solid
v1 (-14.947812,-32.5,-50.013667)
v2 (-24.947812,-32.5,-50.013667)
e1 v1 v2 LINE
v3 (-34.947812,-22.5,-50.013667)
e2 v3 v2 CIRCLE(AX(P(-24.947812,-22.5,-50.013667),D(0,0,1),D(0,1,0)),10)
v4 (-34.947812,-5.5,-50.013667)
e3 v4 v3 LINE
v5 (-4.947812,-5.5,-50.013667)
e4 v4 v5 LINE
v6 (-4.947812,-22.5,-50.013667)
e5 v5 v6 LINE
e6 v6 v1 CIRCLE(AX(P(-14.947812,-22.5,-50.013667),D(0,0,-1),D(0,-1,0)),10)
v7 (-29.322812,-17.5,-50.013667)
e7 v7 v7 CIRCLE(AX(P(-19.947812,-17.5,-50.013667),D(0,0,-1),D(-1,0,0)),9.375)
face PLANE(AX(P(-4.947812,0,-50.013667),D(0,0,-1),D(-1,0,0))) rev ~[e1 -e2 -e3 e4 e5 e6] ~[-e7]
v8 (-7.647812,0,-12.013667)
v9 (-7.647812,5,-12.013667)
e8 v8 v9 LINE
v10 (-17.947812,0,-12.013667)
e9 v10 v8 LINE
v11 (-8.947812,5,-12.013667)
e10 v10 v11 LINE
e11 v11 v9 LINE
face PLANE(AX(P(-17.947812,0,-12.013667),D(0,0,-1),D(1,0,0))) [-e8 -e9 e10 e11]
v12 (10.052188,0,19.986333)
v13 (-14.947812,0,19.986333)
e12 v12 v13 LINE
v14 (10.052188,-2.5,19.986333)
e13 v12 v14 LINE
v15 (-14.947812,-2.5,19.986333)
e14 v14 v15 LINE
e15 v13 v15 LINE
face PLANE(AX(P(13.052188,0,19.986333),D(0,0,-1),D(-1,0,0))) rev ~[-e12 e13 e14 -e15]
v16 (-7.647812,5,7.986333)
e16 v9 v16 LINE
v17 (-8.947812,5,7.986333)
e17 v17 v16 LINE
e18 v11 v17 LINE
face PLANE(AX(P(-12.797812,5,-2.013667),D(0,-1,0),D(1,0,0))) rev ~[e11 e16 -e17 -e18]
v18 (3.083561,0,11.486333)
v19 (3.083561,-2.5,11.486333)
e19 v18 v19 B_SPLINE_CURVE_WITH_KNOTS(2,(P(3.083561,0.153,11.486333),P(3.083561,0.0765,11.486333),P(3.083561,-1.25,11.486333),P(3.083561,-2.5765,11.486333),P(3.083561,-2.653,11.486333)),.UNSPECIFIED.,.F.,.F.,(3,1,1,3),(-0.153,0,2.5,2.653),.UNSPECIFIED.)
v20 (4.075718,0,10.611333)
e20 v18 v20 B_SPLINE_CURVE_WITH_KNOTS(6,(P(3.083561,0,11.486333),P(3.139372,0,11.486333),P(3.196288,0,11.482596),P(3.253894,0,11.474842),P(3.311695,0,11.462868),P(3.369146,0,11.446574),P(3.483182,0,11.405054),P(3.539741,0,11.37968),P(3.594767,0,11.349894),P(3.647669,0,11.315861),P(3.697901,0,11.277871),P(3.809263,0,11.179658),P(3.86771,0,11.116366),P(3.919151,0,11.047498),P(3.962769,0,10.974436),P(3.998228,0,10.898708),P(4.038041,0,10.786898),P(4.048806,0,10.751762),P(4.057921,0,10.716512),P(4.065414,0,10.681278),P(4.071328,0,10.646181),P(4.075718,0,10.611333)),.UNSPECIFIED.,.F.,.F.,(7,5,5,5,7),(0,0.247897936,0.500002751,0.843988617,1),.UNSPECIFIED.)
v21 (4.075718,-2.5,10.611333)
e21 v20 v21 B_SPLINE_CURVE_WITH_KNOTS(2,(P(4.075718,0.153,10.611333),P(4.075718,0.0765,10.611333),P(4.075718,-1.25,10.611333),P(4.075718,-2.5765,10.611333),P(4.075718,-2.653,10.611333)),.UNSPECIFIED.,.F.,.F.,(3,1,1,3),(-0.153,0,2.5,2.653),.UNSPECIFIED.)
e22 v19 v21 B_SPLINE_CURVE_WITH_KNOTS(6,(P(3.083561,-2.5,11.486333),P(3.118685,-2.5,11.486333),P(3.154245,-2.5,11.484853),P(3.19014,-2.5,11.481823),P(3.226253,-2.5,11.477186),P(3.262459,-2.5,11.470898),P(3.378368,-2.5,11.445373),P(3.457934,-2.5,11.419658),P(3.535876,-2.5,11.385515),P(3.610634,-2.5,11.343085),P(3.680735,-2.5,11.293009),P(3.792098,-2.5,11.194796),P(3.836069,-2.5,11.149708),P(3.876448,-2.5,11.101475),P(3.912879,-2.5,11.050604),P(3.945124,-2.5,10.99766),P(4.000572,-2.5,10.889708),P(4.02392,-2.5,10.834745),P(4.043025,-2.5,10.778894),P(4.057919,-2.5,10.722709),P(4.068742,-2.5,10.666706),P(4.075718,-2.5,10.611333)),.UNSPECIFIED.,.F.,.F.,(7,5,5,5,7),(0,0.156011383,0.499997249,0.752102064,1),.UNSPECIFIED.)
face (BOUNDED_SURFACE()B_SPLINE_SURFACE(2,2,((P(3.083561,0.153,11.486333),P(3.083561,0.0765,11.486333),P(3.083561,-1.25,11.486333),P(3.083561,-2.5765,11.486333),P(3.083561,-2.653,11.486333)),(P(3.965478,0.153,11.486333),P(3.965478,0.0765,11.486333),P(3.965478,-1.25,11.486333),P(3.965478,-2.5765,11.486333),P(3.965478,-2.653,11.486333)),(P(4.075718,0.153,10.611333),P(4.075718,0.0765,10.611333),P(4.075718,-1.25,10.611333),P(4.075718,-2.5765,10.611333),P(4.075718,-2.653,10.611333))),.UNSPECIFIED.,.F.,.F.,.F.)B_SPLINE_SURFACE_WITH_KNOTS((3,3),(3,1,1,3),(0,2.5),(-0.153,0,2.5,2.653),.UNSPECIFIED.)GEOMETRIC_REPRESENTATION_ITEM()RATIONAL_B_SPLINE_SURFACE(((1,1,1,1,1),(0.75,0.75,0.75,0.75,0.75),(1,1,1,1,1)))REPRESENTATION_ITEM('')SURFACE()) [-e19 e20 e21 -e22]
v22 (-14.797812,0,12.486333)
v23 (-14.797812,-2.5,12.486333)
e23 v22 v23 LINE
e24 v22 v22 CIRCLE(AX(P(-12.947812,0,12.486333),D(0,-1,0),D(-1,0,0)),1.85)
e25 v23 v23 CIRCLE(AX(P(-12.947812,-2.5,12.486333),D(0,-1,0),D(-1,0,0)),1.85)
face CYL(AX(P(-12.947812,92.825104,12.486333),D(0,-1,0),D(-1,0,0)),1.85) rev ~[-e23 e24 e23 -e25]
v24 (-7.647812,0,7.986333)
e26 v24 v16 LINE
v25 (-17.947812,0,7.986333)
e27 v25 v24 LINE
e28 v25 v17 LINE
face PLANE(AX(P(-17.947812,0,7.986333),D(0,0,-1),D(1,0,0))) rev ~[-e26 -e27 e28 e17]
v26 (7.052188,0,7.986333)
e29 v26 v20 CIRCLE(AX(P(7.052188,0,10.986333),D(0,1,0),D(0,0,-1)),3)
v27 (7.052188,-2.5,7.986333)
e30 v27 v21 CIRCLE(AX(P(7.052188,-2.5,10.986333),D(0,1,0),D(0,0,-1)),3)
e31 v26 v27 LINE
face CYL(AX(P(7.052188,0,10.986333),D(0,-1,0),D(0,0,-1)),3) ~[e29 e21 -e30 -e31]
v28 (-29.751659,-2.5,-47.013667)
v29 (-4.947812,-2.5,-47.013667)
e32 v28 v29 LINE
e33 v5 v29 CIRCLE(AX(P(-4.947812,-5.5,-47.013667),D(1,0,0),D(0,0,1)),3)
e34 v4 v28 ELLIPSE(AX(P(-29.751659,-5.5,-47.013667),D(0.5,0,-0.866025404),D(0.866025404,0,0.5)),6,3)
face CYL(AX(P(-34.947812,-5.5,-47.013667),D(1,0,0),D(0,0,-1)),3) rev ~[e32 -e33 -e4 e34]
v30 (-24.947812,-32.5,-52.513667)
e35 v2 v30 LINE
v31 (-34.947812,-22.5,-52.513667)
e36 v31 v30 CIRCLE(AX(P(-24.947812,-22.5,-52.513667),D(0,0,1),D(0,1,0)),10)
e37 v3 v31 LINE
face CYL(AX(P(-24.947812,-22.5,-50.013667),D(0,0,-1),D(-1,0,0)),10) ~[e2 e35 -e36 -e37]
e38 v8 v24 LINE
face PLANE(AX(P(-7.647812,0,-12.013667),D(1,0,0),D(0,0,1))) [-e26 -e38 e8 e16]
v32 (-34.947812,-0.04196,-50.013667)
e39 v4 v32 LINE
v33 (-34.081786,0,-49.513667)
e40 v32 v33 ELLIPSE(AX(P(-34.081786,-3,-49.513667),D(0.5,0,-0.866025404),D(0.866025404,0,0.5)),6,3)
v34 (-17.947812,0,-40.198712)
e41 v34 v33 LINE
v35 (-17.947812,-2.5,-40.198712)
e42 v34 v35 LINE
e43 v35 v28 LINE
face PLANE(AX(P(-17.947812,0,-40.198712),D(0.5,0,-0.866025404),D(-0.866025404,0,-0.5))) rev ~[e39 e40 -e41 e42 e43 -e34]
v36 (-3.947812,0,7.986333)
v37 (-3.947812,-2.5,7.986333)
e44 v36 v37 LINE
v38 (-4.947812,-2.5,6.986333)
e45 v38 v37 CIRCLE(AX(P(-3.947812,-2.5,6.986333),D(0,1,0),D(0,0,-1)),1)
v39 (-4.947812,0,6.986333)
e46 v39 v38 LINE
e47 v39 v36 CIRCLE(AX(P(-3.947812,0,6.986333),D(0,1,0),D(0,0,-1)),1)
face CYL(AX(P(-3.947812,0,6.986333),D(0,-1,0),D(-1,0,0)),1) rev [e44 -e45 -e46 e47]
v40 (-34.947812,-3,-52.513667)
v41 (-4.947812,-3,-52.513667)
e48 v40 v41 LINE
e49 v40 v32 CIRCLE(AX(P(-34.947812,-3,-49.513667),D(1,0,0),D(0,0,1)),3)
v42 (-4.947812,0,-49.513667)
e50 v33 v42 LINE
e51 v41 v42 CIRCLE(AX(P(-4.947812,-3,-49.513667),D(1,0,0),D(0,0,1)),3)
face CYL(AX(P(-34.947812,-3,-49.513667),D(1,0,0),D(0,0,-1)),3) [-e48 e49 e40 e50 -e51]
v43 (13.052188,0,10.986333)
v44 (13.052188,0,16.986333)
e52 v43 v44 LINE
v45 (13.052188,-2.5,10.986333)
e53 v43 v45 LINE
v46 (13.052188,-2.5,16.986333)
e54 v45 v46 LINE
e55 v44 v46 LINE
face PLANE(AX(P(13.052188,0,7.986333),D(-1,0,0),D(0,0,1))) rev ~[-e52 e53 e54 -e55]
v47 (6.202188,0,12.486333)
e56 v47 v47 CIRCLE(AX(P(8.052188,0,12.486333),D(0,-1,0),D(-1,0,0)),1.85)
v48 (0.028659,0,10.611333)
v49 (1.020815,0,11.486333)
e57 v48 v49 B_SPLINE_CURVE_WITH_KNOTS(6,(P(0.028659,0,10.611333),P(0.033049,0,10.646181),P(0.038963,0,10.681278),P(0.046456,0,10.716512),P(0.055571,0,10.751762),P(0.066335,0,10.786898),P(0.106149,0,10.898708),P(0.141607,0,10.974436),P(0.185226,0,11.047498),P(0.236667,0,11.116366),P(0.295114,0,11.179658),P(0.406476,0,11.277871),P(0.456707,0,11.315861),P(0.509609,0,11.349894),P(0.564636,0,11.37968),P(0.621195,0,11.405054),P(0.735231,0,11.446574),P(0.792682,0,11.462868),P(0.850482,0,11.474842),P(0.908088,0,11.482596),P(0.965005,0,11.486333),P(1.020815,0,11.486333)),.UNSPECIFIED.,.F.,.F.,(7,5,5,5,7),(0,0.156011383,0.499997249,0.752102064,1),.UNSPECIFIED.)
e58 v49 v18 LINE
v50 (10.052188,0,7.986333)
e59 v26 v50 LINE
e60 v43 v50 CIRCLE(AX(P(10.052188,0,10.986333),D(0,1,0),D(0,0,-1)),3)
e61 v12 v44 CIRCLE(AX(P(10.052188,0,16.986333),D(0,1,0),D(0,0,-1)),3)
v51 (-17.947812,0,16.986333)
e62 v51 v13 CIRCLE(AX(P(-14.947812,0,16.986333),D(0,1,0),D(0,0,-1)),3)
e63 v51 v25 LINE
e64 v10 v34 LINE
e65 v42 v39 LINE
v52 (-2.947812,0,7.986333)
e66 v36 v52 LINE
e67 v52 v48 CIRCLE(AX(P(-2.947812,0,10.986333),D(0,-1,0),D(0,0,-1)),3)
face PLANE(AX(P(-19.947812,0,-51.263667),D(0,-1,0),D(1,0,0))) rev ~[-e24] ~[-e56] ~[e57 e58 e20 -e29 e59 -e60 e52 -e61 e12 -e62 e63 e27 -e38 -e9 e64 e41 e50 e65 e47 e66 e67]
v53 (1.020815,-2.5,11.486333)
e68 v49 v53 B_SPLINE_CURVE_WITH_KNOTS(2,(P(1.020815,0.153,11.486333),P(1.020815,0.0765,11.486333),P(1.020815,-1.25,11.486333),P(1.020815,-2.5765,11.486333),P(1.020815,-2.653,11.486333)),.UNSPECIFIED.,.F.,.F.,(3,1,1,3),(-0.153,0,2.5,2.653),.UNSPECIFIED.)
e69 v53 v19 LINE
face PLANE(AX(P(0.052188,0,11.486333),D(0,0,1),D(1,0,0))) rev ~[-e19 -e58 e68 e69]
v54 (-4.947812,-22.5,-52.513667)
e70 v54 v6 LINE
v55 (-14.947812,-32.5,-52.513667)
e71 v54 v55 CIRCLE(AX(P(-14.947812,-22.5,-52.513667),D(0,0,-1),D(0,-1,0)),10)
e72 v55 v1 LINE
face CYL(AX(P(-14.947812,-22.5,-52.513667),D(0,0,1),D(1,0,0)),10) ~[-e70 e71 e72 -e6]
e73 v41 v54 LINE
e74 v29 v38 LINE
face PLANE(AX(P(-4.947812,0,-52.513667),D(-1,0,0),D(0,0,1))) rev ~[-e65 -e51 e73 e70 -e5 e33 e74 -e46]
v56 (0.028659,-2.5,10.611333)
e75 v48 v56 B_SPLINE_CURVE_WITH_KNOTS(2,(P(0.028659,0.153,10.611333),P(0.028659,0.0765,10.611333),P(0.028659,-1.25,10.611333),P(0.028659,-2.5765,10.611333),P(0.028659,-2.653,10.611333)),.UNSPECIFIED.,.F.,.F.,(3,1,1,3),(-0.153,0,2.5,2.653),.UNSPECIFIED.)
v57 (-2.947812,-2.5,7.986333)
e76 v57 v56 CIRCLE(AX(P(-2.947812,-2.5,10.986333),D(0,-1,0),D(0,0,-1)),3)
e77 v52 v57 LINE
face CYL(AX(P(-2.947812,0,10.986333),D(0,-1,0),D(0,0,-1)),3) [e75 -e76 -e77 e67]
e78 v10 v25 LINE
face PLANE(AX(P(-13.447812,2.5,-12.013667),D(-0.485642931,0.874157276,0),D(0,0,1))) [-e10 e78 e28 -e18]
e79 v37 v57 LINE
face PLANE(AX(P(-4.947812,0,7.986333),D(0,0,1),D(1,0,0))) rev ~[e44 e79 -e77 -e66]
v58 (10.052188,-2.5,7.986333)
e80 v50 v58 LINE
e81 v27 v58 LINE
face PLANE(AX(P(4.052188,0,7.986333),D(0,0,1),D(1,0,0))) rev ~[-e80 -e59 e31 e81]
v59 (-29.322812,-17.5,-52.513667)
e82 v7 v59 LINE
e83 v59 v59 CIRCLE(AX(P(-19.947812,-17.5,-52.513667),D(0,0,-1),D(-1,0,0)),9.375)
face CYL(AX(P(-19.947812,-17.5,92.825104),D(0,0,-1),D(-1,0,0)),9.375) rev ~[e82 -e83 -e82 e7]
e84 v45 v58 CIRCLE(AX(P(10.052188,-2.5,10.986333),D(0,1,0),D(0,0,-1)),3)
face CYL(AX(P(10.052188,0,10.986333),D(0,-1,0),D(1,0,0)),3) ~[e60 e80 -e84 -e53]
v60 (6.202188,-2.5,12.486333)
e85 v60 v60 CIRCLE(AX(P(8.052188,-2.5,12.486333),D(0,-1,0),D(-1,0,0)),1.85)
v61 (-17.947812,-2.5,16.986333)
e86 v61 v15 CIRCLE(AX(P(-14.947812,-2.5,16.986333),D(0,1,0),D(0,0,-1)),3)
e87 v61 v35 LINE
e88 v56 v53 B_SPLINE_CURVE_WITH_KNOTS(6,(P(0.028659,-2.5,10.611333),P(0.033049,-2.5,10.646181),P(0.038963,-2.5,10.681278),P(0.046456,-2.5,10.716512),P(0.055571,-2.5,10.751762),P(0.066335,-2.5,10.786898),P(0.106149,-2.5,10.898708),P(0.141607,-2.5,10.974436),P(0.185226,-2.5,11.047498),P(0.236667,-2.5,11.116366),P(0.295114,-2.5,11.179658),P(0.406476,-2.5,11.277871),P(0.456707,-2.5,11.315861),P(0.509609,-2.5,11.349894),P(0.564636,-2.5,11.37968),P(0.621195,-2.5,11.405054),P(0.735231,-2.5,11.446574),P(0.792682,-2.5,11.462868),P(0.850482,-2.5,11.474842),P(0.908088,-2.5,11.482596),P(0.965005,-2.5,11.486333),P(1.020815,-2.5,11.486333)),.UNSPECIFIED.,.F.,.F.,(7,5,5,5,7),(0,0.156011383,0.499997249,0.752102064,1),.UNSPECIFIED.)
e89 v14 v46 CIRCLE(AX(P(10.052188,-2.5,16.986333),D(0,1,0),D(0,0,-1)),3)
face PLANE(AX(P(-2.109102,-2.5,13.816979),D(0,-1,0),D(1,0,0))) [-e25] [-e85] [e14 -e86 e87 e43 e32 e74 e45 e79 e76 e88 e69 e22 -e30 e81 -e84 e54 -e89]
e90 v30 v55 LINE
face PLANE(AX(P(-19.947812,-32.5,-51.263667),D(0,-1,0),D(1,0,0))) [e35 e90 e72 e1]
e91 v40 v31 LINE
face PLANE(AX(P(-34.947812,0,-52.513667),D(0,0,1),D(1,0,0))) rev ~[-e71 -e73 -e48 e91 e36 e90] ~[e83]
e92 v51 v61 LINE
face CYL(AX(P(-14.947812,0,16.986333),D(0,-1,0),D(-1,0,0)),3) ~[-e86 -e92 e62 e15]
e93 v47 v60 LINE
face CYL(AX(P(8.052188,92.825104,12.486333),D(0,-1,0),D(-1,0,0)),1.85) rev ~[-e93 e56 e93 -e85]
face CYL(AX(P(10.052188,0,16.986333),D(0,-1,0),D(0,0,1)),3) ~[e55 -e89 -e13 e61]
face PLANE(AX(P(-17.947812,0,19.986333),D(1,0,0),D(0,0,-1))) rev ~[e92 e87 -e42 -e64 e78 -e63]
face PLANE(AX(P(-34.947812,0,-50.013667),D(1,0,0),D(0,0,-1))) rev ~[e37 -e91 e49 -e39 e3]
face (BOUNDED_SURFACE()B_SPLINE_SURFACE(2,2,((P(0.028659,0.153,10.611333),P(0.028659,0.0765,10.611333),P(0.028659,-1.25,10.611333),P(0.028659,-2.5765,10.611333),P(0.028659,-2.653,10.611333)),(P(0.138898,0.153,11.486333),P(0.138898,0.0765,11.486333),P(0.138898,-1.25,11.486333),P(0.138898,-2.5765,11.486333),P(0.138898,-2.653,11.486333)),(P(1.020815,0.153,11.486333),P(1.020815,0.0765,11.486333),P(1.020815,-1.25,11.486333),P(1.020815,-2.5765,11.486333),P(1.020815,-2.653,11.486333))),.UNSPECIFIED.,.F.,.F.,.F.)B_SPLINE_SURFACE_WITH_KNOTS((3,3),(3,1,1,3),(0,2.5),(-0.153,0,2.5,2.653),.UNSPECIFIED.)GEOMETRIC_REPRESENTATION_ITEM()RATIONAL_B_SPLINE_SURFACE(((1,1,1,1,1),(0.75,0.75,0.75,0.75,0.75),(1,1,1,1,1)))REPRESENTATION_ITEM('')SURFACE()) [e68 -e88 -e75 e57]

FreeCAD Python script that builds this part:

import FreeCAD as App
import Part
import Sketcher
from FreeCAD import Vector
Q = App.Units.Quantity


def edges_at(feature, points):
    """Names of the edges that pass closest to the given points."""
    edges = feature.Shape.Edges
    near = lambda p: min(range(len(edges)), key=lambda i: edges[i].distToShape(Part.Vertex(*p))[0])
    return sorted({f"Edge{near(p) + 1}" for p in points})

doc = App.newDocument("Part")
body = doc.addObject("PartDesign::Body", "Body")

# Sketch on XZ plane
sketch1 = body.newObject("Sketcher::SketchObject", "Sketch")
sketch1.AttachmentSupport = (doc.getObject("XZ_Plane"), [""])
sketch1.MapMode = "FlatFace"
sketch1.addGeometry([
    Part.LineSegment(Vector(13.1, 8, 0), Vector(13.1, 20, 0)),  # 0
    Part.LineSegment(Vector(13.1, 20, 0), Vector(-17.9, 20, 0)),  # 1
    Part.LineSegment(Vector(-17.9, 20, 0), Vector(-17.9, -40.2, 0)),  # 2
    Part.LineSegment(Vector(-17.9, -40.2, 0), Vector(-34.9, -50, 0)),  # 3
    Part.LineSegment(Vector(-34.9, -50, 0), Vector(-4.9, -50, 0)),  # 4
    Part.LineSegment(Vector(-4.9, -50, 0), Vector(-4.9, 8, 0)),  # 5
    Part.LineSegment(Vector(-4.9, 8, 0), Vector(0.1, 8, 0)),  # 6
    Part.LineSegment(Vector(0.1, 8, 0), Vector(0.1, 11.5, 0)),  # 7
    Part.LineSegment(Vector(0.1, 11.5, 0), Vector(4.1, 11.5, 0)),  # 8
    Part.LineSegment(Vector(4.1, 11.5, 0), Vector(4.1, 8, 0)),  # 9
    Part.LineSegment(Vector(4.1, 8, 0), Vector(13.1, 8, 0)),  # 10
], False)
sketch1.addConstraint([
    Sketcher.Constraint("Coincident", 0, 2, 1, 1),
    Sketcher.Constraint("Coincident", 1, 2, 2, 1),
    Sketcher.Constraint("Coincident", 2, 2, 3, 1),
    Sketcher.Constraint("Coincident", 3, 2, 4, 1),
    Sketcher.Constraint("Coincident", 4, 2, 5, 1),
    Sketcher.Constraint("Coincident", 5, 2, 6, 1),
    Sketcher.Constraint("Coincident", 6, 2, 7, 1),
    Sketcher.Constraint("Coincident", 7, 2, 8, 1),
    Sketcher.Constraint("Coincident", 8, 2, 9, 1),
    Sketcher.Constraint("Coincident", 9, 2, 10, 1),
    Sketcher.Constraint("Coincident", 10, 2, 0, 1),
    Sketcher.Constraint("Vertical", 0),
    Sketcher.Constraint("Horizontal", 1),
    Sketcher.Constraint("Vertical", 2),
    Sketcher.Constraint("Horizontal", 4),
    Sketcher.Constraint("Vertical", 5),
    Sketcher.Constraint("Horizontal", 6),
    Sketcher.Constraint("Vertical", 7),
    Sketcher.Constraint("Horizontal", 8),
    Sketcher.Constraint("Vertical", 9),
    Sketcher.Constraint("Horizontal", 10),
    Sketcher.Constraint("Horizontal", 6, 2, 9, 2),
    Sketcher.Constraint("DistanceX", 1, 2, 1, 1, 31.0),
    Sketcher.Constraint("DistanceX", 4, 1, 4, 2, 30.0),
    Sketcher.Constraint("DistanceX", 6, 1, 6, 2, 5.0),
    Sketcher.Constraint("DistanceX", 8, 1, 8, 2, 4.0),
    Sketcher.Constraint("DistanceX", 10, 1, 10, 2, 9.0),
    Sketcher.Constraint("DistanceY", 0, 1, 0, 2, 12.0),
    Sketcher.Constraint("DistanceY", 5, 1, 5, 2, 58.0),
    Sketcher.Constraint("Angle", 3, Q("-150 deg")),
    Sketcher.Constraint("DistanceY", 7, 1, 7, 2, 3.5),
    Sketcher.Constraint("DistanceX", -1, 1, 0, 2, 13.052188),
    Sketcher.Constraint("DistanceY", 2, 2, -1, 1, 40.198712),
])
pad1 = body.newObject("PartDesign::Pad", "Pad")
pad1.Profile = sketch1
pad1.Length = 2.5

# Sketch on XZ plane
sketch2 = body.newObject("Sketcher::SketchObject", "Sketch001")
sketch2.AttachmentSupport = (doc.getObject("XZ_Plane"), [""])
sketch2.MapMode = "FlatFace"
sketch2.addGeometry([
    Part.LineSegment(Vector(-4.9, -50, 0), Vector(-34.9, -50, 0)),
    Part.LineSegment(Vector(-34.9, -50, 0), Vector(-34.9, -52.5, 0)),
    Part.LineSegment(Vector(-34.9, -52.5, 0), Vector(-4.9, -52.5, 0)),
    Part.LineSegment(Vector(-4.9, -52.5, 0), Vector(-4.9, -50, 0)),
], False)
sketch2.addConstraint([
    Sketcher.Constraint("Coincident", 0, 2, 1, 1),
    Sketcher.Constraint("Coincident", 1, 2, 2, 1),
    Sketcher.Constraint("Coincident", 2, 2, 3, 1),
    Sketcher.Constraint("Coincident", 3, 2, 0, 1),
    Sketcher.Constraint("Horizontal", 0),
    Sketcher.Constraint("Vertical", 1),
    Sketcher.Constraint("Horizontal", 2),
    Sketcher.Constraint("Vertical", 3),
    Sketcher.Constraint("DistanceX", 0, 2, 0, 1, 30.0),
    Sketcher.Constraint("DistanceY", 1, 2, 1, 1, 2.5),
    Sketcher.Constraint("DistanceX", 0, 2, -1, 1, 34.947812),
    Sketcher.Constraint("DistanceY", 0, 2, -1, 1, 50.013667),
])
pad2 = body.newObject("PartDesign::Pad", "Pad001")
pad2.Profile = sketch2
pad2.Length = 32.5

# Sketch on XY plane
sketch3 = body.newObject("Sketcher::SketchObject", "Sketch002")
sketch3.AttachmentSupport = (doc.getObject("XY_Plane"), [""])
sketch3.MapMode = "FlatFace"
sketch3.addGeometry(Part.Circle(Vector(-20, -18, 0), Vector(0, 0, 1), 9), False)
sketch3.addConstraint([
    Sketcher.Constraint("Diameter", 0, 18.75),
    Sketcher.Constraint("DistanceY", 0, 3, -1, 1, 17.5),
    Sketcher.Constraint("DistanceX", 0, 3, -1, 1, 19.947812),
])
doc.recompute()
hole = body.newObject("PartDesign::Hole", "Hole")
hole.Profile = sketch3
hole.ThreadType = "None"
hole.Diameter = 18.75
hole.DepthType = "ThroughAll"

# Sketch on XZ plane
sketch4 = body.newObject("Sketcher::SketchObject", "Sketch003")
sketch4.AttachmentSupport = (doc.getObject("XZ_Plane"), [""])
sketch4.MapMode = "FlatFace"
sketch4.addGeometry([
    Part.Circle(Vector(-12.9, 12.5, 0), Vector(0, 0, 1), 1.9),
    Part.Circle(Vector(8.1, 12.5, 0), Vector(0, 0, 1), 1.9),
], False)
sketch4.addConstraint([
    Sketcher.Constraint("Equal", 0, 1),
    Sketcher.Constraint("Horizontal", 0, 3, 1, 3),
    Sketcher.Constraint("Diameter", 0, 3.7),
    Sketcher.Constraint("DistanceX", 0, 3, 1, 3, 21.0),
    Sketcher.Constraint("DistanceX", 0, 3, -1, 1, 12.947812),
    Sketcher.Constraint("DistanceY", -1, 1, 0, 3, 12.486333),
])
doc.recompute()
hole2 = body.newObject("PartDesign::Hole", "Hole001")
hole2.Profile = sketch4
hole2.ThreadType = "None"
hole2.Diameter = 3.7
hole2.DepthType = "ThroughAll"
hole2.Reversed = True

# Sketch on XZ plane
sketch5 = body.newObject("Sketcher::SketchObject", "Sketch004")
sketch5.AttachmentSupport = (doc.getObject("XZ_Plane"), [""])
sketch5.MapMode = "FlatFace"
sketch5.addGeometry([
    Part.LineSegment(Vector(-18, 8, 0), Vector(-18, -12, 0)),
    Part.LineSegment(Vector(-18, -12, 0), Vector(-8, -12, 0)),
    Part.LineSegment(Vector(-8, -12, 0), Vector(-8, 8, 0)),
    Part.LineSegment(Vector(-8, 8, 0), Vector(-18, 8, 0)),
], False)
sketch5.addConstraint([
    Sketcher.Constraint("Coincident", 0, 2, 1, 1),
    Sketcher.Constraint("Coincident", 1, 2, 2, 1),
    Sketcher.Constraint("Coincident", 2, 2, 3, 1),
    Sketcher.Constraint("Coincident", 3, 2, 0, 1),
    Sketcher.Constraint("Vertical", 0),
    Sketcher.Constraint("Horizontal", 1),
    Sketcher.Constraint("Vertical", 2),
    Sketcher.Constraint("Horizontal", 3),
    Sketcher.Constraint("DistanceY", 0, 2, 0, 1, 20.0),
    Sketcher.Constraint("DistanceX", 1, 1, 1, 2, 10.3),
    Sketcher.Constraint("DistanceX", 0, 2, -1, 1, 17.947812),
    Sketcher.Constraint("DistanceY", 0, 2, -1, 1, 12.013667),
])
pad3 = body.newObject("PartDesign::Pad", "Pad002")
pad3.Profile = sketch5
pad3.Length = 5
pad3.Reversed = True
doc.recompute()

chamfer = body.newObject("PartDesign::Chamfer", "Chamfer")
chamfer.Base = (pad3, edges_at(pad3, [(-17.948, 5, -2.014)]))
chamfer.ChamferType = "Two distances"
chamfer.Size = 5
chamfer.Size2 = 9
chamfer.FlipDirection = True
doc.recompute()

fillet = body.newObject("PartDesign::Fillet", "Fillet")
fillet.Base = (chamfer, edges_at(chamfer, [(-4.948, -32.5, -51.264), (-34.948, -32.5, -51.264)]))
fillet.Radius = 10
doc.recompute()

fillet2 = body.newObject("PartDesign::Fillet", "Fillet001")
fillet2.Base = (fillet, edges_at(fillet, [
    (-17.948, -1.25, 19.986),
    (13.052, -1.25, 19.986),
    (0.052, -1.25, 7.986),
    (4.052, -1.25, 7.986),
    (13.052, -1.25, 7.986),
    (-19.948, 0, -52.514),
    (-19.948, -2.5, -50.014),
]))
fillet2.Radius = 3
doc.recompute()

fillet3 = body.newObject("PartDesign::Fillet", "Fillet002")
fillet3.Base = (fillet2, edges_at(fillet2, [(0.052, -1.25, 11.486), (4.052, -1.25, 11.486), (-4.948, -1.25, 7.986)]))
fillet3.Radius = 1

doc.recompute()
